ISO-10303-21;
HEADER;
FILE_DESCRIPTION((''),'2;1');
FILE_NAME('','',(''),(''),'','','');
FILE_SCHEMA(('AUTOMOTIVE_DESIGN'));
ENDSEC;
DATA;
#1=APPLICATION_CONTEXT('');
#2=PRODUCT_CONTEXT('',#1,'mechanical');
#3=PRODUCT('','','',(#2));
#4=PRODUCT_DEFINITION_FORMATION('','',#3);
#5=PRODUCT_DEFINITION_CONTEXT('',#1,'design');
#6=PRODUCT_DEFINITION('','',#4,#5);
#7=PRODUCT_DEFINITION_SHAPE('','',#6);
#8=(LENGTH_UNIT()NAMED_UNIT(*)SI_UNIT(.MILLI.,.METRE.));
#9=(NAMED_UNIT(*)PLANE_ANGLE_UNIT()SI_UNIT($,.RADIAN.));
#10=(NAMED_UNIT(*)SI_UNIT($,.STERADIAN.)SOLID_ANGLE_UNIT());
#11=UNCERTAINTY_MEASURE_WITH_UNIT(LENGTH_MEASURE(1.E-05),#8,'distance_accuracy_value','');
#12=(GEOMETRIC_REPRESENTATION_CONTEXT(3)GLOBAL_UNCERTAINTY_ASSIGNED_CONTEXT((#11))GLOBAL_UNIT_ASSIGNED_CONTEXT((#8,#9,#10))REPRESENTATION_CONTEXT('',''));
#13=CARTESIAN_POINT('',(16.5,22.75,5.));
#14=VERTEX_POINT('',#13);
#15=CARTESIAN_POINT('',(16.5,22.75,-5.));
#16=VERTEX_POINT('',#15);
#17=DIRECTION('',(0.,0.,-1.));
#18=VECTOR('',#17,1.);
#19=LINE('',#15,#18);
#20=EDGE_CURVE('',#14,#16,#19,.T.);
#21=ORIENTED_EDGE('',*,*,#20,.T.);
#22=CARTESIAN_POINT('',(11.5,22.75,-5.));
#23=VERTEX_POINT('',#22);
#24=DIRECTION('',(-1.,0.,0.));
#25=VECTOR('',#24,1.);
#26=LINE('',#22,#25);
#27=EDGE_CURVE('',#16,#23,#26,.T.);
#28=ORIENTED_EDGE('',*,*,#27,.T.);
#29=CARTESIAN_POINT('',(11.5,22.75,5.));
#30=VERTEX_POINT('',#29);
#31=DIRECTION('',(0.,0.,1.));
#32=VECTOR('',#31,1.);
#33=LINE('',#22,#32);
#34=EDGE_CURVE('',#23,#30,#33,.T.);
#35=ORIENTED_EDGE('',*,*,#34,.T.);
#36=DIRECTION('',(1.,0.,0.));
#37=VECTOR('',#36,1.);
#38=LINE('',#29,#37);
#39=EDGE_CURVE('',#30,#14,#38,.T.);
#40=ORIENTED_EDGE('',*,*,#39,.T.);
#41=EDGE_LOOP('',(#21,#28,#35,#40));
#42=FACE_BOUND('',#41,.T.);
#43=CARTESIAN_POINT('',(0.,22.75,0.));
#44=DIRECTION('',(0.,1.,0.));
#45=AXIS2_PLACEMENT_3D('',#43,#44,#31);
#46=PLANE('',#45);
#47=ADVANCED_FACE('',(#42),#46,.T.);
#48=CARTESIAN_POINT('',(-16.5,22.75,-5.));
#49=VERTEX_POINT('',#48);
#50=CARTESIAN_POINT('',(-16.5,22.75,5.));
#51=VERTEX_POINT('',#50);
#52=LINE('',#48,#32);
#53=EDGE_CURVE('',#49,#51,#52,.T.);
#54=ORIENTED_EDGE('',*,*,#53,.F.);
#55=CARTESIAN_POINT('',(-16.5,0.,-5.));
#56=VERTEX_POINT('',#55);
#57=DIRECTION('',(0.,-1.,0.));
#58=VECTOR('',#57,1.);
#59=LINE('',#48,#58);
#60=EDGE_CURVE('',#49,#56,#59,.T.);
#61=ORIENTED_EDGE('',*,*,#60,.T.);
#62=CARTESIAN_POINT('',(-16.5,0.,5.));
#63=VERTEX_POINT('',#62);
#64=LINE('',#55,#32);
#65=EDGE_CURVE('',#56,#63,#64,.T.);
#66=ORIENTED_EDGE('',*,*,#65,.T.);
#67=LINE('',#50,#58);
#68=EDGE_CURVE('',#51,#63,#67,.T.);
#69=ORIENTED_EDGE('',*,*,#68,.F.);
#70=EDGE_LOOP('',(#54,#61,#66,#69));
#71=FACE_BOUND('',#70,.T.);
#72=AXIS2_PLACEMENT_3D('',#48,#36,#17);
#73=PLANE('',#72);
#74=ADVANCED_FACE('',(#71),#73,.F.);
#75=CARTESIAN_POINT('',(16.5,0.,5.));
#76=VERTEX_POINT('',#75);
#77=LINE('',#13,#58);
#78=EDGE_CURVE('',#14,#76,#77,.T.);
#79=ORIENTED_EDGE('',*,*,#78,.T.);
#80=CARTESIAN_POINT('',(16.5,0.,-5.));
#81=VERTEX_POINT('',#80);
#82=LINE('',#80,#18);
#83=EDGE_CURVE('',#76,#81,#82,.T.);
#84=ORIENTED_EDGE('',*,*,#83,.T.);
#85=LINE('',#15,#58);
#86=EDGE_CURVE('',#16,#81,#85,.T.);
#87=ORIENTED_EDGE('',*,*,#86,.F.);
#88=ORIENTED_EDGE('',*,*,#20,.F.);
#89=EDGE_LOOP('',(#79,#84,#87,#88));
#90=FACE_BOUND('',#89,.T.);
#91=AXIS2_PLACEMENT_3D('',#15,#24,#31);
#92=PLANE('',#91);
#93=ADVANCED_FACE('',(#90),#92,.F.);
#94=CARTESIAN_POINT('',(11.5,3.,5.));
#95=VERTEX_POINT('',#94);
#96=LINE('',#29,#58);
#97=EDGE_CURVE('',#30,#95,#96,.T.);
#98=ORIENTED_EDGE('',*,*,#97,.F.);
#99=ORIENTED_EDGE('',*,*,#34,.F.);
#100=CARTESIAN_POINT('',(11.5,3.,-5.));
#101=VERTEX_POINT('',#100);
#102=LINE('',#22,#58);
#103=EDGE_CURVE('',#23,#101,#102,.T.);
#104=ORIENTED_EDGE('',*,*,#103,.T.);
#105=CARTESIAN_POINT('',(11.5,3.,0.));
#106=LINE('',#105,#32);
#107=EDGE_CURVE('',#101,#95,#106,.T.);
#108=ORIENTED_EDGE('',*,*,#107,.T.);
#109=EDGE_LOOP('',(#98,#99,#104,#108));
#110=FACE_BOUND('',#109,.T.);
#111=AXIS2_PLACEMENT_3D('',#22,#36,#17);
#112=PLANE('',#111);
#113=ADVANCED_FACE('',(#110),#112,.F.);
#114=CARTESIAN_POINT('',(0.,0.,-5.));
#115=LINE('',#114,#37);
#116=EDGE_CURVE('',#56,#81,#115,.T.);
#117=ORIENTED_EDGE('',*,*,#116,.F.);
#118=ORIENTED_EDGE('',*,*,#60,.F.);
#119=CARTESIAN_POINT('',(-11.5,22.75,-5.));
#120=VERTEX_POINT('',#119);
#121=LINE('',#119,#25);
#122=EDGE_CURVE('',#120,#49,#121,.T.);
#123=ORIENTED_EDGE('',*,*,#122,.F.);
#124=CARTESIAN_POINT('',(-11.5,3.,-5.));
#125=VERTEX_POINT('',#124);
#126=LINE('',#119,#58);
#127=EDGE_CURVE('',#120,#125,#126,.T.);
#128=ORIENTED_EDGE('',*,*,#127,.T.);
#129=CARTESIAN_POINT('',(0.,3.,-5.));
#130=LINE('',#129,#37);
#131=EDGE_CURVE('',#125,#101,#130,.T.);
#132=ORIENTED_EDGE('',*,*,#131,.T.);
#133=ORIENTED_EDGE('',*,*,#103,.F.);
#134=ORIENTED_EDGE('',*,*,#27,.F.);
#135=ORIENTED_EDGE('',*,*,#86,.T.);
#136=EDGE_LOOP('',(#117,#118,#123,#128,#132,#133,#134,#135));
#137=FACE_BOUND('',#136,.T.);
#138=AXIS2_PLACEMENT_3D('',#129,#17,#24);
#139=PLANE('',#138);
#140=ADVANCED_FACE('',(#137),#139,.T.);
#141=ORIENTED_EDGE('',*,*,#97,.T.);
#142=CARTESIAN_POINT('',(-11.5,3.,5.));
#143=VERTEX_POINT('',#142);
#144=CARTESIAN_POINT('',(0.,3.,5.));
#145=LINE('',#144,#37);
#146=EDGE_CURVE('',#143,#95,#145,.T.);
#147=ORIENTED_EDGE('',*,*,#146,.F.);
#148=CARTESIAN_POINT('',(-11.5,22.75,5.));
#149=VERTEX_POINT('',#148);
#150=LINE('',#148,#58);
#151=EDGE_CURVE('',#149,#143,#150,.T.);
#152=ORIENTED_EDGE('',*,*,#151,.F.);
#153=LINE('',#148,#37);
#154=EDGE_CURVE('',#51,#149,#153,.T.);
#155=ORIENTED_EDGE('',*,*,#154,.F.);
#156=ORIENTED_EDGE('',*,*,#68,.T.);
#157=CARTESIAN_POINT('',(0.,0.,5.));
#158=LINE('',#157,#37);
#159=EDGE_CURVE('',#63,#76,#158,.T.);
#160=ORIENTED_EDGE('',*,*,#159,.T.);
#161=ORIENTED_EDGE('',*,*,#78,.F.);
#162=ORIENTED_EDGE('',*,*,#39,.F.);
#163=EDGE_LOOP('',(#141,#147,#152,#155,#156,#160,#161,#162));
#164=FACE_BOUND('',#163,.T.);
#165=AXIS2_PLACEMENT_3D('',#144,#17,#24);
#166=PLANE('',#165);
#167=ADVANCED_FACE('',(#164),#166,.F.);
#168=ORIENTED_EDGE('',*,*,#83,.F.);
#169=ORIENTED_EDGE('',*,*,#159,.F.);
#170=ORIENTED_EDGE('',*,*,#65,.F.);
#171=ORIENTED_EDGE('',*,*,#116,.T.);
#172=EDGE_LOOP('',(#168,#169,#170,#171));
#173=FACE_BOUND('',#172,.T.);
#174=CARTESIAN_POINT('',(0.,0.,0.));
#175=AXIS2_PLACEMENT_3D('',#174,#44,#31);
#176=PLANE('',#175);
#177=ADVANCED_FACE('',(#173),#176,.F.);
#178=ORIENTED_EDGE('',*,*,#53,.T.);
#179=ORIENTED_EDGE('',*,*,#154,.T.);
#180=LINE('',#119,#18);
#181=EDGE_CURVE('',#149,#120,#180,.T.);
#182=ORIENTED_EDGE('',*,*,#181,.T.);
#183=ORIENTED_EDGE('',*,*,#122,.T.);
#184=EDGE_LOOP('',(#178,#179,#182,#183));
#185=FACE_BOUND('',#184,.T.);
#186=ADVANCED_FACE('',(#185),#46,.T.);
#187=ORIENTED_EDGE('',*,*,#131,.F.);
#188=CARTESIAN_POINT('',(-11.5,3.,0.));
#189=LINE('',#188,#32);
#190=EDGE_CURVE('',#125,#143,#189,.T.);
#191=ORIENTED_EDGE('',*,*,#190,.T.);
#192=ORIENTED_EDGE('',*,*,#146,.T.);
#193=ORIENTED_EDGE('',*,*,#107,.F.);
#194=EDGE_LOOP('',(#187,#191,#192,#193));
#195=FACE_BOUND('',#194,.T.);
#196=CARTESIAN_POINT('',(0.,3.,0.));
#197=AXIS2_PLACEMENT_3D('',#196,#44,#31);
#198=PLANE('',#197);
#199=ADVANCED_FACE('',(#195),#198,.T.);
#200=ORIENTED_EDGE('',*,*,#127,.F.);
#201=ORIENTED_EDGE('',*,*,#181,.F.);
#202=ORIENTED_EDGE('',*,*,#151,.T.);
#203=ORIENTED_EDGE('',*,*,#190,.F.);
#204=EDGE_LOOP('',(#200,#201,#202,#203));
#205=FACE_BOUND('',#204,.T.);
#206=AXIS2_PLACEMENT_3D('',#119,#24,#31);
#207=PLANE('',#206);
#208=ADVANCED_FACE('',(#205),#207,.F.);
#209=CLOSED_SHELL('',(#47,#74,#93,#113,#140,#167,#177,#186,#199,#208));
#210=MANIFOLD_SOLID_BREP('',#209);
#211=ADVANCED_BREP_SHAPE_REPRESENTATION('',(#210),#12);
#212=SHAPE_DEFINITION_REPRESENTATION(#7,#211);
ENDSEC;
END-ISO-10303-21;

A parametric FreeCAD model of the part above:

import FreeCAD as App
import Part
import Sketcher

doc = App.newDocument("Part")
body = doc.addObject("PartDesign::Body", "Body")

sketch1 = body.newObject("Sketcher::SketchObject", "Sketch")
sketch1.AttachmentSupport = (doc.getObject("XZ_Plane"), [""])
sketch1.MapMode = "FlatFace"
sketch1.addGeometry(Part.LineSegment(App.Vector(-12, -5, 0), App.Vector(-12, 5, 0)), False)
sketch1.addGeometry(Part.LineSegment(App.Vector(-12, 5, 0), App.Vector(12, 5, 0)), False)
sketch1.addGeometry(Part.LineSegment(App.Vector(12, 5, 0), App.Vector(12, -5, 0)), False)
sketch1.addGeometry(Part.LineSegment(App.Vector(12, -5, 0), App.Vector(-12, -5, 0)), False)
sketch1.addConstraint(Sketcher.Constraint("Coincident", 0, 2, 1, 1))
sketch1.addConstraint(Sketcher.Constraint("Coincident", 1, 2, 2, 1))
sketch1.addConstraint(Sketcher.Constraint("Coincident", 2, 2, 3, 1))
sketch1.addConstraint(Sketcher.Constraint("Coincident", 3, 2, 0, 1))
sketch1.addConstraint(Sketcher.Constraint("Vertical", 0))
sketch1.addConstraint(Sketcher.Constraint("Horizontal", 1))
sketch1.addConstraint(Sketcher.Constraint("Vertical", 2))
sketch1.addConstraint(Sketcher.Constraint("Horizontal", 3))
sketch1.addConstraint(Sketcher.Constraint("Symmetric", 0, 2, 2, 2, -1, 1))
sketch1.addConstraint(Sketcher.Constraint("DistanceX", 1, 1, 1, 2, 23.0))
sketch1.addConstraint(Sketcher.Constraint("DistanceY", 0, 1, 0, 2, 10.0))
pad1 = body.newObject("PartDesign::Pad", "Pad")
pad1.Profile = sketch1
pad1.Length = 3
pad1.Reversed = True

sketch2 = body.newObject("Sketcher::SketchObject", "Sketch001")
sketch2.AttachmentSupport = (doc.getObject("XZ_Plane"), [""])
sketch2.MapMode = "FlatFace"
sketch2.addGeometry(Part.LineSegment(App.Vector(12, -5, 0), App.Vector(12, 5, 0)), False)
sketch2.addGeometry(Part.LineSegment(App.Vector(12, 5, 0), App.Vector(16, 5, 0)), False)
sketch2.addGeometry(Part.LineSegment(App.Vector(16, 5, 0), App.Vector(16, -5, 0)), False)
sketch2.addGeometry(Part.LineSegment(App.Vector(16, -5, 0), App.Vector(12, -5, 0)), False)
sketch2.addGeometry(Part.LineSegment(App.Vector(-16, -5, 0), App.Vector(-16, 5, 0)), False)
sketch2.addGeometry(Part.LineSegment(App.Vector(-16, 5, 0), App.Vector(-12, 5, 0)), False)
sketch2.addGeometry(Part.LineSegment(App.Vector(-12, 5, 0), App.Vector(-12, -5, 0)), False)
sketch2.addGeometry(Part.LineSegment(App.Vector(-12, -5, 0), App.Vector(-16, -5, 0)), False)
sketch2.addConstraint(Sketcher.Constraint("Coincident", 0, 2, 1, 1))
sketch2.addConstraint(Sketcher.Constraint("Coincident", 1, 2, 2, 1))
sketch2.addConstraint(Sketcher.Constraint("Coincident", 2, 2, 3, 1))
sketch2.addConstraint(Sketcher.Constraint("Coincident", 3, 2, 0, 1))
sketch2.addConstraint(Sketcher.Constraint("Coincident", 4, 2, 5, 1))
sketch2.addConstraint(Sketcher.Constraint("Coincident", 5, 2, 6, 1))
sketch2.addConstraint(Sketcher.Constraint("Coincident", 6, 2, 7, 1))
sketch2.addConstraint(Sketcher.Constraint("Coincident", 7, 2, 4, 1))
sketch2.addConstraint(Sketcher.Constraint("Vertical", 0))
sketch2.addConstraint(Sketcher.Constraint("Horizontal", 1))
sketch2.addConstraint(Sketcher.Constraint("Vertical", 2))
sketch2.addConstraint(Sketcher.Constraint("Horizontal", 3))
sketch2.addConstraint(Sketcher.Constraint("Vertical", 4))
sketch2.addConstraint(Sketcher.Constraint("Horizontal", 5))
sketch2.addConstraint(Sketcher.Constraint("Vertical", 6))
sketch2.addConstraint(Sketcher.Constraint("Horizontal", 7))
sketch2.addConstraint(Sketcher.Constraint("Symmetric", 2, 2, 4, 2, -1, 1))
sketch2.addConstraint(Sketcher.Constraint("Symmetric", 0, 2, 6, 2, -1, 1))
sketch2.addConstraint(Sketcher.Constraint("Horizontal", 1, 2, 4, 2))
sketch2.addConstraint(Sketcher.Constraint("DistanceX", 1, 1, 1, 2, 5.0))
sketch2.addConstraint(Sketcher.Constraint("DistanceY", 0, 1, 0, 2, 10.0))
sketch2.addConstraint(Sketcher.Constraint("DistanceX", 4, 2, 0, 2, 28.0))
pad2 = body.newObject("PartDesign::Pad", "Pad001")
pad2.Profile = sketch2
pad2.Length = 22.75
pad2.Reversed = True

doc.recompute()
